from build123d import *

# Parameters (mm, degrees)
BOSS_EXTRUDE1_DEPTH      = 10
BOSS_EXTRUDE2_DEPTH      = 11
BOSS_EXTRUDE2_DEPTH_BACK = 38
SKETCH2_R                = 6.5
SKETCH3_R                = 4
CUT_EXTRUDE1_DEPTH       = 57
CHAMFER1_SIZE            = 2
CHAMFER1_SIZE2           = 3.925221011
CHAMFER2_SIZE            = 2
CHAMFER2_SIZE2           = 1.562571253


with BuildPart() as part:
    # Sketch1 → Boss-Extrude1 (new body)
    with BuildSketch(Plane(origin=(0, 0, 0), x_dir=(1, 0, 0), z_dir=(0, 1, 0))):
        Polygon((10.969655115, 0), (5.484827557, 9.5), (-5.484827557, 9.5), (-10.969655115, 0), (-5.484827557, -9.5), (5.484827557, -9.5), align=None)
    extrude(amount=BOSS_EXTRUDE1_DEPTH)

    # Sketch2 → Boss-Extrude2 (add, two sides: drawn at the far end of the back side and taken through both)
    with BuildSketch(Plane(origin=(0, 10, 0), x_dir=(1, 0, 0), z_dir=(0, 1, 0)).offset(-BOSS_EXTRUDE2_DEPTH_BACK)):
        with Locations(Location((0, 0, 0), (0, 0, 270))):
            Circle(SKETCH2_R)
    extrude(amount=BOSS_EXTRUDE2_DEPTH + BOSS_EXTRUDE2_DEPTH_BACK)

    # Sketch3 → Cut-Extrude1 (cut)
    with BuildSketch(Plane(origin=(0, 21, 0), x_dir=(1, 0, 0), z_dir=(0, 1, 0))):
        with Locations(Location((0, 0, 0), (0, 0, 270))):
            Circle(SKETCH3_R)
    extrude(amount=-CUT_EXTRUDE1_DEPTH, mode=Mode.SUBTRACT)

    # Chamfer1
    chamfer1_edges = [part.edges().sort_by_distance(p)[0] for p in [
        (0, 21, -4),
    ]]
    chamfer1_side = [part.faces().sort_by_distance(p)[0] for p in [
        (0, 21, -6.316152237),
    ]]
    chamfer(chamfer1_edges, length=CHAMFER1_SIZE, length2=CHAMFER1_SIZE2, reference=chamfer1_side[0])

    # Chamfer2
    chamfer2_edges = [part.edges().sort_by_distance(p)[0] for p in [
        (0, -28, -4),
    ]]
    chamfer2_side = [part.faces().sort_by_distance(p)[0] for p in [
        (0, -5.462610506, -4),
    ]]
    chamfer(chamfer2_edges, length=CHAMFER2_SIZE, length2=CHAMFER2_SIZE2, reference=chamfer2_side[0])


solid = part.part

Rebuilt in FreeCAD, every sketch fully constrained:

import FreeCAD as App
import Part
import Sketcher
Q = App.Units.Quantity


def edges_at(feature, points):
    """Names of the edges that pass closest to the given points."""
    edges = feature.Shape.Edges
    near = lambda p: min(range(len(edges)), key=lambda i: edges[i].distToShape(Part.Vertex(*p))[0])
    return sorted({f"Edge{near(p) + 1}" for p in points})

doc = App.newDocument("Part")
body = doc.addObject("PartDesign::Body", "Body")

sketch1 = doc.addObject("Sketcher::SketchObject", "Sketch")
body.addObject(sketch1)
sketch1.AttachmentSupport = (doc.XZ_Plane, [""])
sketch1.MapMode = "FlatFace"
sketch1.addGeometry(Part.LineSegment(App.Vector(11, 0, 0), App.Vector(5, -10, 0)), False)
sketch1.addGeometry(Part.LineSegment(App.Vector(5, -10, 0), App.Vector(-5, -10, 0)), False)
sketch1.addGeometry(Part.LineSegment(App.Vector(-5, -10, 0), App.Vector(-11, 0, 0)), False)
sketch1.addGeometry(Part.LineSegment(App.Vector(-11, 0, 0), App.Vector(-5, 10, 0)), False)
sketch1.addGeometry(Part.LineSegment(App.Vector(-5, 10, 0), App.Vector(5, 10, 0)), False)
sketch1.addGeometry(Part.LineSegment(App.Vector(5, 10, 0), App.Vector(11, 0, 0)), False)
sketch1.addConstraint(Sketcher.Constraint("Coincident", 0, 2, 1, 1))
sketch1.addConstraint(Sketcher.Constraint("Coincident", 1, 2, 2, 1))
sketch1.addConstraint(Sketcher.Constraint("Coincident", 2, 2, 3, 1))
sketch1.addConstraint(Sketcher.Constraint("Coincident", 3, 2, 4, 1))
sketch1.addConstraint(Sketcher.Constraint("Coincident", 4, 2, 5, 1))
sketch1.addConstraint(Sketcher.Constraint("Coincident", 5, 2, 0, 1))
sketch1.addConstraint(Sketcher.Constraint("Horizontal", 1))
sketch1.addConstraint(Sketcher.Constraint("Horizontal", 4))
sketch1.addConstraint(Sketcher.Constraint("Symmetric", 0, 2, 3, 2, -1, 1))
sketch1.addConstraint(Sketcher.Constraint("Symmetric", 2, 2, 5, 2, -1, 1))
sketch1.addConstraint(Sketcher.Constraint("PointOnObject", 2, 2, -1))
sketch1.addConstraint(Sketcher.Constraint("Parallel", 2, 5))
sketch1.addConstraint(Sketcher.Constraint("Vertical", 1, 2, 3, 2))
sketch1.addConstraint(Sketcher.Constraint("Angle", 0, Q("-120 deg")))
sketch1.addConstraint(Sketcher.Constraint("DistanceY", 1, 2, 3, 2, Q("19 mm")))
sketch1.addConstraint(Sketcher.Constraint("DistanceX", 1, 2, 1, 1, Q("10.969655 mm")))
pad1 = doc.addObject("PartDesign::Pad", "Pad")
body.addObject(pad1)
pad1.Profile = sketch1
pad1.Length = 10
pad1.Reversed = True

sketch2 = doc.addObject("Sketcher::SketchObject", "Sketch001")
body.addObject(sketch2)
sketch2.AttachmentSupport = (doc.XZ_Plane, [""])
sketch2.MapMode = "FlatFace"
sketch2.AttachmentOffset = App.Placement(App.Vector(0, 0, -10), App.Rotation())
sketch2.addGeometry(Part.Circle(App.Vector(0, 0, 0), App.Vector(0, 0, 1), 6), False)
sketch2.addConstraint(Sketcher.Constraint("Coincident", 0, 3, -1, 1))
sketch2.addConstraint(Sketcher.Constraint("Diameter", 0, Q("13 mm")))
pad2 = doc.addObject("PartDesign::Pad", "Pad001")
body.addObject(pad2)
pad2.Profile = sketch2
pad2.Type = "TwoLengths"
pad2.Length = 11
pad2.Length2 = 38
pad2.Reversed = True

sketch3 = doc.addObject("Sketcher::SketchObject", "Sketch002")
body.addObject(sketch3)
sketch3.AttachmentSupport = (doc.XZ_Plane, [""])
sketch3.MapMode = "FlatFace"
sketch3.AttachmentOffset = App.Placement(App.Vector(0, 0, -21), App.Rotation())
sketch3.addGeometry(Part.Circle(App.Vector(0, 0, 0), App.Vector(0, 0, 1), 4), False)
sketch3.addConstraint(Sketcher.Constraint("Coincident", 0, 3, -1, 1))
sketch3.addConstraint(Sketcher.Constraint("Diameter", 0, Q("8 mm")))
pocket1 = doc.addObject("PartDesign::Pocket", "Pocket")
body.addObject(pocket1)
pocket1.Profile = sketch3
pocket1.Length = 57
pocket1.Reversed = True
doc.recompute()

chamfer = doc.addObject("PartDesign::Chamfer", "Chamfer")
body.addObject(chamfer)
chamfer.Base = (pocket1, edges_at(pocket1, [(0, 21, -4)]))
chamfer.ChamferType = "Two distances"
chamfer.Size = 2
chamfer.Size2 = 3.925221
doc.recompute()

chamfer2 = doc.addObject("PartDesign::Chamfer", "Chamfer001")
body.addObject(chamfer2)
chamfer2.Base = (chamfer, edges_at(chamfer, [(0, -28, -4)]))
chamfer2.ChamferType = "Two distances"
chamfer2.Size = 2
chamfer2.Size2 = 1.562571

doc.recompute()
